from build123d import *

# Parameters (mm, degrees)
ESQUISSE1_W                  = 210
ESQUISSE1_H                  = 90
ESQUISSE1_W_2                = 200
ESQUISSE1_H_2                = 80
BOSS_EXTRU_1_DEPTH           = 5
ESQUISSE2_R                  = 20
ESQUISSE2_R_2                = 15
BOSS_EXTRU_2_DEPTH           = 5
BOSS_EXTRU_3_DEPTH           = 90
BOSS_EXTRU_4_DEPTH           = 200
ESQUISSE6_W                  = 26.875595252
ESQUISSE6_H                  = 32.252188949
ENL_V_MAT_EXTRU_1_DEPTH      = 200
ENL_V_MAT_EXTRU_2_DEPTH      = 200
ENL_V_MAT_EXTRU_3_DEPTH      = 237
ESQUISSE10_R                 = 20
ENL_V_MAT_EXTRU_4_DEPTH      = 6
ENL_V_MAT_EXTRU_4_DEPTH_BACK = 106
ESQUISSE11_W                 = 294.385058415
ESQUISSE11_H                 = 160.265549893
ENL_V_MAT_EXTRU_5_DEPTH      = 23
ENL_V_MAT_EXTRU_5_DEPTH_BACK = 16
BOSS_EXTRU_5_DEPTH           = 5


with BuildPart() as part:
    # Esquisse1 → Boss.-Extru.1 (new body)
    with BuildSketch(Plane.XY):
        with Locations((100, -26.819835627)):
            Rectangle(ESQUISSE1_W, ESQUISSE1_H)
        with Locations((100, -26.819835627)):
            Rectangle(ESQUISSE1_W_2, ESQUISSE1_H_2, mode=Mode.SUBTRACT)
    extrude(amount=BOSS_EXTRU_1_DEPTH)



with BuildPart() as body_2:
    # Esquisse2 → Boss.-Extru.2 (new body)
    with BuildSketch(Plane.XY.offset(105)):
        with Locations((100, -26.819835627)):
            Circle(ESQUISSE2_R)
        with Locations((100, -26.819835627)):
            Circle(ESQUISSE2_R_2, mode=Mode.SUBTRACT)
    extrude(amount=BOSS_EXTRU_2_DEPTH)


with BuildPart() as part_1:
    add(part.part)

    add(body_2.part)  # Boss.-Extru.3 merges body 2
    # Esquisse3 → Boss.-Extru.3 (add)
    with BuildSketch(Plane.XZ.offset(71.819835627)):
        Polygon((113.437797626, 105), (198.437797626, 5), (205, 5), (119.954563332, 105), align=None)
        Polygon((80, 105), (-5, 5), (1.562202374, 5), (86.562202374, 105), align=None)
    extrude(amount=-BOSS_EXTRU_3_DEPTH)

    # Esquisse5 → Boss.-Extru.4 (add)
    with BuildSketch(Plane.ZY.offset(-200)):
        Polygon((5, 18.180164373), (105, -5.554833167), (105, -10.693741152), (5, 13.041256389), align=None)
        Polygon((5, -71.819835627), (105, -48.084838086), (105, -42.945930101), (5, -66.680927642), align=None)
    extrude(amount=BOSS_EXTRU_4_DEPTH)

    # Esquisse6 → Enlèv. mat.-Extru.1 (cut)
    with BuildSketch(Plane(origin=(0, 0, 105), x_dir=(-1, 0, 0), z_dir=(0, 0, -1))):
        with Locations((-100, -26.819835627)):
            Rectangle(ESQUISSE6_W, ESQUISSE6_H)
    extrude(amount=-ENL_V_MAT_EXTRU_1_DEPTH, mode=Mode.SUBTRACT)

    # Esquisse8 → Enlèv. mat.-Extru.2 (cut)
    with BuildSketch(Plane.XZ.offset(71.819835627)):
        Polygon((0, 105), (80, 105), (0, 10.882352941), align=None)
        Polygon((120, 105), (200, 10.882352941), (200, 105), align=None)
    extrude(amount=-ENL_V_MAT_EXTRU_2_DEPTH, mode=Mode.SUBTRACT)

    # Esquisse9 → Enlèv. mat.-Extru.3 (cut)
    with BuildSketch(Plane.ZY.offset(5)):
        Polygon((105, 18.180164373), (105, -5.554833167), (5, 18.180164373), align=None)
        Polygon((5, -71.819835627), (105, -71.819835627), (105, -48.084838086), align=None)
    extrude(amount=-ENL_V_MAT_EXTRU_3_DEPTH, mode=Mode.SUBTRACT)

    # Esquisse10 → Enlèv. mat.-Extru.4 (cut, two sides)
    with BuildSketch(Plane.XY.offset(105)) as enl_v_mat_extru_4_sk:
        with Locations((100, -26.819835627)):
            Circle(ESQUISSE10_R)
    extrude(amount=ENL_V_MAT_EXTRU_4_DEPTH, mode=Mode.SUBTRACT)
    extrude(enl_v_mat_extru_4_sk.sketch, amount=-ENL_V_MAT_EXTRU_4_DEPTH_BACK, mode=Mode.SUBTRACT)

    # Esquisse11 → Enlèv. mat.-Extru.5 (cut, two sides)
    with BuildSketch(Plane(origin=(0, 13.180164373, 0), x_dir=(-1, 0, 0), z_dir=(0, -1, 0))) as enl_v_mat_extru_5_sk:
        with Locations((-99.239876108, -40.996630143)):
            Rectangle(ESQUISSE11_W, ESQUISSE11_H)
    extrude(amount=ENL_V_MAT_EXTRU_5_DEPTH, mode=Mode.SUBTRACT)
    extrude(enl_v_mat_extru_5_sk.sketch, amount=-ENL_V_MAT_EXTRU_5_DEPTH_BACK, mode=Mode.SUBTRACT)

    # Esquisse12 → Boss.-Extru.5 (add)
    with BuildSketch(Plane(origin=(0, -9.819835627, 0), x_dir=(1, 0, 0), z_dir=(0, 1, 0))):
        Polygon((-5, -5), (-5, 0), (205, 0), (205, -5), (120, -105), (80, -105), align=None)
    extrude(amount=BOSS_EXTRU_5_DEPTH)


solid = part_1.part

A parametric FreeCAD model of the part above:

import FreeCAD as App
import Part
import Sketcher
Q = App.Units.Quantity

doc = App.newDocument("Part")
body = doc.addObject("PartDesign::Body", "Body")

# Sketch on XY plane
sketch1 = doc.addObject("Sketcher::SketchObject", "Sketch")
body.addObject(sketch1)
sketch1.AttachmentSupport = (doc.XY_Plane, [""])
sketch1.MapMode = "FlatFace"
sketch1.addGeometry(Part.LineSegment(App.Vector(-5, 18, 0), App.Vector(-5, -72, 0)), False)
sketch1.addGeometry(Part.LineSegment(App.Vector(-5, -72, 0), App.Vector(205, -72, 0)), False)
sketch1.addGeometry(Part.LineSegment(App.Vector(205, -72, 0), App.Vector(205, 18, 0)), False)
sketch1.addGeometry(Part.LineSegment(App.Vector(205, 18, 0), App.Vector(-5, 18, 0)), False)
sketch1.addGeometry(Part.LineSegment(App.Vector(200, -67, 0), App.Vector(0, -67, 0)), False)
sketch1.addGeometry(Part.LineSegment(App.Vector(0, -67, 0), App.Vector(0, 13, 0)), False)
sketch1.addGeometry(Part.LineSegment(App.Vector(0, 13, 0), App.Vector(200, 13, 0)), False)
sketch1.addGeometry(Part.LineSegment(App.Vector(200, 13, 0), App.Vector(200, -67, 0)), False)
sketch1.addConstraint(Sketcher.Constraint("Coincident", 0, 2, 1, 1))
sketch1.addConstraint(Sketcher.Constraint("Coincident", 1, 2, 2, 1))
sketch1.addConstraint(Sketcher.Constraint("Coincident", 2, 2, 3, 1))
sketch1.addConstraint(Sketcher.Constraint("Coincident", 3, 2, 0, 1))
sketch1.addConstraint(Sketcher.Constraint("Coincident", 4, 2, 5, 1))
sketch1.addConstraint(Sketcher.Constraint("Coincident", 5, 2, 6, 1))
sketch1.addConstraint(Sketcher.Constraint("Coincident", 6, 2, 7, 1))
sketch1.addConstraint(Sketcher.Constraint("Coincident", 7, 2, 4, 1))
sketch1.addConstraint(Sketcher.Constraint("Vertical", 0))
sketch1.addConstraint(Sketcher.Constraint("Horizontal", 1))
sketch1.addConstraint(Sketcher.Constraint("Vertical", 2))
sketch1.addConstraint(Sketcher.Constraint("Horizontal", 3))
sketch1.addConstraint(Sketcher.Constraint("Horizontal", 4))
sketch1.addConstraint(Sketcher.Constraint("Vertical", 5))
sketch1.addConstraint(Sketcher.Constraint("Horizontal", 6))
sketch1.addConstraint(Sketcher.Constraint("Vertical", 7))
sketch1.addConstraint(Sketcher.Constraint("PointOnObject", 4, 2, -2))
sketch1.addConstraint(Sketcher.Constraint("DistanceX", 1, 1, 1, 2, Q("210 mm")))
sketch1.addConstraint(Sketcher.Constraint("DistanceX", 4, 2, 4, 1, Q("200 mm")))
sketch1.addConstraint(Sketcher.Constraint("DistanceY", 0, 2, 0, 1, Q("90 mm")))
sketch1.addConstraint(Sketcher.Constraint("DistanceY", 5, 1, 5, 2, Q("80 mm")))
sketch1.addConstraint(Sketcher.Constraint("DistanceX", 0, 2, -1, 1, Q("5 mm")))
sketch1.addConstraint(Sketcher.Constraint("DistanceY", 0, 2, 4, 2, Q("5 mm")))
sketch1.addConstraint(Sketcher.Constraint("DistanceY", 0, 2, -1, 1, Q("71.819836 mm")))
pad1 = doc.addObject("PartDesign::Pad", "Pad")
body.addObject(pad1)
pad1.Profile = sketch1
pad1.Length = 5
body2 = doc.addObject("PartDesign::Body", "Body001")

# Sketch on XY plane
sketch2 = doc.addObject("Sketcher::SketchObject", "Sketch001")
body2.addObject(sketch2)
sketch2.AttachmentSupport = (doc.getObject("XY_Plane001"), [""])
sketch2.MapMode = "FlatFace"
sketch2.AttachmentOffset = App.Placement(App.Vector(0, 0, 105), App.Rotation())
sketch2.addGeometry(Part.Circle(App.Vector(100, -27, 0), App.Vector(0, 0, 1), 20), False)
sketch2.addGeometry(Part.Circle(App.Vector(100, -27, 0), App.Vector(0, 0, 1), 15), False)
sketch2.addConstraint(Sketcher.Constraint("Coincident", 1, 3, 0, 3))
sketch2.addConstraint(Sketcher.Constraint("Diameter", 0, Q("40 mm")))
sketch2.addConstraint(Sketcher.Constraint("Diameter", 1, Q("30 mm")))
sketch2.addConstraint(Sketcher.Constraint("DistanceX", -1, 1, 0, 3, Q("100 mm")))
sketch2.addConstraint(Sketcher.Constraint("DistanceY", 0, 3, -1, 1, Q("26.819836 mm")))
pad2 = doc.addObject("PartDesign::Pad", "Pad001")
body2.addObject(pad2)
pad2.Profile = sketch2
pad2.Length = 5
body.AllowCompound = True
doc.recompute()

boolean = doc.addObject("PartDesign::Boolean", "Boolean")
body.addObject(boolean)
boolean.Type = "Fuse"
boolean.addObjects([body2])

# Sketch on XZ plane
sketch3 = doc.addObject("Sketcher::SketchObject", "Sketch002")
body.addObject(sketch3)
sketch3.AttachmentSupport = (doc.XZ_Plane, [""])
sketch3.MapMode = "FlatFace"
sketch3.AttachmentOffset = App.Placement(App.Vector(0, 0, 71.819836), App.Rotation())
sketch3.addGeometry(Part.LineSegment(App.Vector(113, 105, 0), App.Vector(198, 5, 0)), False)
sketch3.addGeometry(Part.LineSegment(App.Vector(198, 5, 0), App.Vector(205, 5, 0)), False)
sketch3.addGeometry(Part.LineSegment(App.Vector(205, 5, 0), App.Vector(120, 105, 0)), False)
sketch3.addGeometry(Part.LineSegment(App.Vector(120, 105, 0), App.Vector(113, 105, 0)), False)
sketch3.addGeometry(Part.LineSegment(App.Vector(80, 105, 0), App.Vector(-5, 5, 0)), False)
sketch3.addGeometry(Part.LineSegment(App.Vector(-5, 5, 0), App.Vector(2, 5, 0)), False)
sketch3.addGeometry(Part.LineSegment(App.Vector(2, 5, 0), App.Vector(87, 105, 0)), False)
sketch3.addGeometry(Part.LineSegment(App.Vector(87, 105, 0), App.Vector(80, 105, 0)), False)
sketch3.addConstraint(Sketcher.Constraint("Coincident", 0, 2, 1, 1))
sketch3.addConstraint(Sketcher.Constraint("Coincident", 1, 2, 2, 1))
sketch3.addConstraint(Sketcher.Constraint("Coincident", 2, 2, 3, 1))
sketch3.addConstraint(Sketcher.Constraint("Coincident", 3, 2, 0, 1))
sketch3.addConstraint(Sketcher.Constraint("Coincident", 4, 2, 5, 1))
sketch3.addConstraint(Sketcher.Constraint("Coincident", 5, 2, 6, 1))
sketch3.addConstraint(Sketcher.Constraint("Coincident", 6, 2, 7, 1))
sketch3.addConstraint(Sketcher.Constraint("Coincident", 7, 2, 4, 1))
sketch3.addConstraint(Sketcher.Constraint("Horizontal", 1))
sketch3.addConstraint(Sketcher.Constraint("Horizontal", 3))
sketch3.addConstraint(Sketcher.Constraint("Horizontal", 5))
sketch3.addConstraint(Sketcher.Constraint("Horizontal", 7))
sketch3.addConstraint(Sketcher.Constraint("Parallel", 4, 6))
sketch3.addConstraint(Sketcher.Constraint("Horizontal", 1, 2, 4, 2))
sketch3.addConstraint(Sketcher.Constraint("Horizontal", 3, 2, 6, 2))
sketch3.addConstraint(Sketcher.Constraint("Equal", 1, 5))
sketch3.addConstraint(Sketcher.Constraint("Equal", 0, 4))
sketch3.addConstraint(Sketcher.Constraint("DistanceY", -1, 1, 0, 2, Q("5 mm")))
sketch3.addConstraint(Sketcher.Constraint("DistanceX", -1, 1, 1, 2, Q("205 mm")))
sketch3.addConstraint(Sketcher.Constraint("DistanceY", -1, 1, 2, 2, Q("105 mm")))
sketch3.addConstraint(Sketcher.Constraint("DistanceX", 4, 2, -1, 1, Q("5 mm")))
sketch3.addConstraint(Sketcher.Constraint("DistanceX", -1, 1, 7, 2, Q("80 mm")))
sketch3.addConstraint(Sketcher.Constraint("Distance", 2, Q("131.273479 mm")))
sketch3.addConstraint(Sketcher.Constraint("DistanceX", 1, 1, 1, 2, Q("6.562202 mm")))
pad3 = doc.addObject("PartDesign::Pad", "Pad002")
body.addObject(pad3)
pad3.Profile = sketch3
pad3.Length = 90
pad3.Reversed = True

# Sketch on YZ plane
sketch4 = doc.addObject("Sketcher::SketchObject", "Sketch003")
body.addObject(sketch4)
sketch4.AttachmentSupport = (doc.YZ_Plane, [""])
sketch4.MapMode = "FlatFace"
sketch4.AttachmentOffset = App.Placement(App.Vector(0, 0, 200), App.Rotation())
sketch4.addGeometry(Part.LineSegment(App.Vector(-6, 105, 0), App.Vector(18, 5, 0)), False)
sketch4.addGeometry(Part.LineSegment(App.Vector(18, 5, 0), App.Vector(13, 5, 0)), False)
sketch4.addGeometry(Part.LineSegment(App.Vector(13, 5, 0), App.Vector(-11, 105, 0)), False)
sketch4.addGeometry(Part.LineSegment(App.Vector(-11, 105, 0), App.Vector(-6, 105, 0)), False)
sketch4.addGeometry(Part.LineSegment(App.Vector(-72, 5, 0), App.Vector(-48, 105, 0)), False)
sketch4.addGeometry(Part.LineSegment(App.Vector(-48, 105, 0), App.Vector(-43, 105, 0)), False)
sketch4.addGeometry(Part.LineSegment(App.Vector(-43, 105, 0), App.Vector(-67, 5, 0)), False)
sketch4.addGeometry(Part.LineSegment(App.Vector(-67, 5, 0), App.Vector(-72, 5, 0)), False)
sketch4.addConstraint(Sketcher.Constraint("Coincident", 0, 2, 1, 1))
sketch4.addConstraint(Sketcher.Constraint("Coincident", 1, 2, 2, 1))
sketch4.addConstraint(Sketcher.Constraint("Coincident", 2, 2, 3, 1))
sketch4.addConstraint(Sketcher.Constraint("Coincident", 3, 2, 0, 1))
sketch4.addConstraint(Sketcher.Constraint("Coincident", 4, 2, 5, 1))
sketch4.addConstraint(Sketcher.Constraint("Coincident", 5, 2, 6, 1))
sketch4.addConstraint(Sketcher.Constraint("Coincident", 6, 2, 7, 1))
sketch4.addConstraint(Sketcher.Constraint("Coincident", 7, 2, 4, 1))
sketch4.addConstraint(Sketcher.Constraint("Horizontal", 1))
sketch4.addConstraint(Sketcher.Constraint("Horizontal", 3))
sketch4.addConstraint(Sketcher.Constraint("Horizontal", 5))
sketch4.addConstraint(Sketcher.Constraint("Horizontal", 7))
sketch4.addConstraint(Sketcher.Constraint("Parallel", 0, 2))
sketch4.addConstraint(Sketcher.Constraint("Parallel", 4, 6))
sketch4.addConstraint(Sketcher.Constraint("Horizontal", 3, 2, 4, 2))
sketch4.addConstraint(Sketcher.Constraint("Horizontal", 1, 2, 6, 2))
sketch4.addConstraint(Sketcher.Constraint("Equal", 3, 5))
sketch4.addConstraint(Sketcher.Constraint("Equal", 2, 4))
sketch4.addConstraint(Sketcher.Constraint("DistanceY", -1, 1, 0, 2, Q("5 mm")))
sketch4.addConstraint(Sketcher.Constraint("DistanceY", -1, 1, 2, 2, Q("105 mm")))
sketch4.addConstraint(Sketcher.Constraint("DistanceX", 7, 2, 0, 2, Q("90 mm")))
sketch4.addConstraint(Sketcher.Constraint("Distance", 0, Q("102.77816 mm")))
sketch4.addConstraint(Sketcher.Constraint("DistanceX", 1, 2, 1, 1, Q("5.138908 mm")))
sketch4.addConstraint(Sketcher.Constraint("DistanceX", 2, 2, -1, 1, Q("10.693741 mm")))
pad4 = doc.addObject("PartDesign::Pad", "Pad003")
body.addObject(pad4)
pad4.Profile = sketch4
pad4.Length = 200
pad4.Reversed = True

# Sketch on XY plane
sketch5 = doc.addObject("Sketcher::SketchObject", "Sketch004")
body.addObject(sketch5)
sketch5.AttachmentSupport = (doc.XY_Plane, [""])
sketch5.MapMode = "FlatFace"
sketch5.AttachmentOffset = App.Placement(App.Vector(0, 0, 105), App.Rotation())
sketch5.addGeometry(Part.LineSegment(App.Vector(113, -11, 0), App.Vector(113, -43, 0)), False)
sketch5.addGeometry(Part.LineSegment(App.Vector(113, -43, 0), App.Vector(87, -43, 0)), False)
sketch5.addGeometry(Part.LineSegment(App.Vector(87, -43, 0), App.Vector(87, -11, 0)), False)
sketch5.addGeometry(Part.LineSegment(App.Vector(87, -11, 0), App.Vector(113, -11, 0)), False)
sketch5.addConstraint(Sketcher.Constraint("Coincident", 0, 2, 1, 1))
sketch5.addConstraint(Sketcher.Constraint("Coincident", 1, 2, 2, 1))
sketch5.addConstraint(Sketcher.Constraint("Coincident", 2, 2, 3, 1))
sketch5.addConstraint(Sketcher.Constraint("Coincident", 3, 2, 0, 1))
sketch5.addConstraint(Sketcher.Constraint("Vertical", 0))
sketch5.addConstraint(Sketcher.Constraint("Horizontal", 1))
sketch5.addConstraint(Sketcher.Constraint("Vertical", 2))
sketch5.addConstraint(Sketcher.Constraint("Horizontal", 3))
sketch5.addConstraint(Sketcher.Constraint("DistanceY", 0, 2, 0, 1, Q("32.252189 mm")))
sketch5.addConstraint(Sketcher.Constraint("DistanceX", 1, 2, 1, 1, Q("26.875595 mm")))
sketch5.addConstraint(Sketcher.Constraint("DistanceY", 0, 2, -1, 1, Q("42.94593 mm")))
sketch5.addConstraint(Sketcher.Constraint("DistanceX", -1, 1, 0, 2, Q("113.437798 mm")))
pocket1 = doc.addObject("PartDesign::Pocket", "Pocket")
body.addObject(pocket1)
pocket1.Profile = sketch5
pocket1.Length = 200
pocket1.Reversed = True

# Sketch on XZ plane
sketch6 = doc.addObject("Sketcher::SketchObject", "Sketch005")
body.addObject(sketch6)
sketch6.AttachmentSupport = (doc.XZ_Plane, [""])
sketch6.MapMode = "FlatFace"
sketch6.AttachmentOffset = App.Placement(App.Vector(0, 0, 71.819836), App.Rotation())
sketch6.addGeometry(Part.LineSegment(App.Vector(80, 105, 0), App.Vector(0, 105, 0)), False)
sketch6.addGeometry(Part.LineSegment(App.Vector(0, 105, 0), App.Vector(0, 11, 0)), False)
sketch6.addGeometry(Part.LineSegment(App.Vector(0, 11, 0), App.Vector(80, 105, 0)), False)
sketch6.addGeometry(Part.LineSegment(App.Vector(120, 105, 0), App.Vector(200, 11, 0)), False)
sketch6.addGeometry(Part.LineSegment(App.Vector(200, 11, 0), App.Vector(200, 105, 0)), False)
sketch6.addGeometry(Part.LineSegment(App.Vector(200, 105, 0), App.Vector(120, 105, 0)), False)
sketch6.addConstraint(Sketcher.Constraint("Coincident", 0, 2, 1, 1))
sketch6.addConstraint(Sketcher.Constraint("Coincident", 1, 2, 2, 1))
sketch6.addConstraint(Sketcher.Constraint("Coincident", 2, 2, 0, 1))
sketch6.addConstraint(Sketcher.Constraint("Coincident", 3, 2, 4, 1))
sketch6.addConstraint(Sketcher.Constraint("Coincident", 4, 2, 5, 1))
sketch6.addConstraint(Sketcher.Constraint("Coincident", 5, 2, 3, 1))
sketch6.addConstraint(Sketcher.Constraint("Horizontal", 0))
sketch6.addConstraint(Sketcher.Constraint("Vertical", 1))
sketch6.addConstraint(Sketcher.Constraint("Vertical", 4))
sketch6.addConstraint(Sketcher.Constraint("Horizontal", 5))
sketch6.addConstraint(Sketcher.Constraint("PointOnObject", 0, 2, -2))
sketch6.addConstraint(Sketcher.Constraint("Horizontal", 1, 2, 3, 2))
sketch6.addConstraint(Sketcher.Constraint("Horizontal", 2, 2, 4, 2))
sketch6.addConstraint(Sketcher.Constraint("Equal", 0, 5))
sketch6.addConstraint(Sketcher.Constraint("DistanceX", 0, 2, 0, 1, Q("80 mm")))
sketch6.addConstraint(Sketcher.Constraint("DistanceY", -1, 1, 0, 2, Q("105 mm")))
sketch6.addConstraint(Sketcher.Constraint("DistanceX", -1, 1, 3, 2, Q("200 mm")))
sketch6.addConstraint(Sketcher.Constraint("Distance", 2, Q("123.523809 mm")))
pocket2 = doc.addObject("PartDesign::Pocket", "Pocket001")
body.addObject(pocket2)
pocket2.Profile = sketch6
pocket2.Length = 200

# Sketch on YZ plane
sketch7 = doc.addObject("Sketcher::SketchObject", "Sketch006")
body.addObject(sketch7)
sketch7.AttachmentSupport = (doc.YZ_Plane, [""])
sketch7.MapMode = "FlatFace"
sketch7.AttachmentOffset = App.Placement(App.Vector(0, 0, -5), App.Rotation())
sketch7.addGeometry(Part.LineSegment(App.Vector(-6, 105, 0), App.Vector(18, 105, 0)), False)
sketch7.addGeometry(Part.LineSegment(App.Vector(18, 105, 0), App.Vector(18, 5, 0)), False)
sketch7.addGeometry(Part.LineSegment(App.Vector(18, 5, 0), App.Vector(-6, 105, 0)), False)
sketch7.addGeometry(Part.LineSegment(App.Vector(-72, 5, 0), App.Vector(-72, 105, 0)), False)
sketch7.addGeometry(Part.LineSegment(App.Vector(-72, 105, 0), App.Vector(-48, 105, 0)), False)
sketch7.addGeometry(Part.LineSegment(App.Vector(-48, 105, 0), App.Vector(-72, 5, 0)), False)
sketch7.addConstraint(Sketcher.Constraint("Coincident", 0, 2, 1, 1))
sketch7.addConstraint(Sketcher.Constraint("Coincident", 1, 2, 2, 1))
sketch7.addConstraint(Sketcher.Constraint("Coincident", 2, 2, 0, 1))
sketch7.addConstraint(Sketcher.Constraint("Coincident", 3, 2, 4, 1))
sketch7.addConstraint(Sketcher.Constraint("Coincident", 4, 2, 5, 1))
sketch7.addConstraint(Sketcher.Constraint("Coincident", 5, 2, 3, 1))
sketch7.addConstraint(Sketcher.Constraint("Horizontal", 0))
sketch7.addConstraint(Sketcher.Constraint("Vertical", 1))
sketch7.addConstraint(Sketcher.Constraint("Vertical", 3))
sketch7.addConstraint(Sketcher.Constraint("Horizontal", 4))
sketch7.addConstraint(Sketcher.Constraint("Horizontal", 2, 2, 3, 2))
sketch7.addConstraint(Sketcher.Constraint("Horizontal", 1, 2, 5, 2))
sketch7.addConstraint(Sketcher.Constraint("Equal", 0, 4))
sketch7.addConstraint(Sketcher.Constraint("DistanceY", 1, 2, 1, 1, Q("100 mm")))
sketch7.addConstraint(Sketcher.Constraint("DistanceY", -1, 1, 0, 2, Q("105 mm")))
sketch7.addConstraint(Sketcher.Constraint("DistanceX", 3, 2, 0, 2, Q("90 mm")))
sketch7.addConstraint(Sketcher.Constraint("Distance", 2, Q("102.77816 mm")))
sketch7.addConstraint(Sketcher.Constraint("DistanceX", 4, 2, -1, 1, Q("48.084838 mm")))
pocket3 = doc.addObject("PartDesign::Pocket", "Pocket002")
body.addObject(pocket3)
pocket3.Profile = sketch7
pocket3.Length = 237
pocket3.Reversed = True

# Sketch on XY plane
sketch8 = doc.addObject("Sketcher::SketchObject", "Sketch007")
body.addObject(sketch8)
sketch8.AttachmentSupport = (doc.XY_Plane, [""])
sketch8.MapMode = "FlatFace"
sketch8.AttachmentOffset = App.Placement(App.Vector(0, 0, 105), App.Rotation())
sketch8.addGeometry(Part.Circle(App.Vector(100, -27, 0), App.Vector(0, 0, 1), 20), False)
sketch8.addConstraint(Sketcher.Constraint("Diameter", 0, Q("40 mm")))
sketch8.addConstraint(Sketcher.Constraint("DistanceX", -1, 1, 0, 3, Q("100 mm")))
sketch8.addConstraint(Sketcher.Constraint("DistanceY", 0, 3, -1, 1, Q("26.819836 mm")))
pocket4 = doc.addObject("PartDesign::Pocket", "Pocket003")
body.addObject(pocket4)
pocket4.Profile = sketch8
pocket4.Type = "ThroughAll"
pocket4.Midplane = True

# Sketch on XZ plane
sketch9 = doc.addObject("Sketcher::SketchObject", "Sketch008")
body.addObject(sketch9)
sketch9.AttachmentSupport = (doc.XZ_Plane, [""])
sketch9.MapMode = "FlatFace"
sketch9.AttachmentOffset = App.Placement(App.Vector(0, 0, -13.180164), App.Rotation())
sketch9.addGeometry(Part.LineSegment(App.Vector(246, -39, 0), App.Vector(246, 121, 0)), False)
sketch9.addGeometry(Part.LineSegment(App.Vector(246, 121, 0), App.Vector(-48, 121, 0)), False)
sketch9.addGeometry(Part.LineSegment(App.Vector(-48, 121, 0), App.Vector(-48, -39, 0)), False)
sketch9.addGeometry(Part.LineSegment(App.Vector(-48, -39, 0), App.Vector(246, -39, 0)), False)
sketch9.addConstraint(Sketcher.Constraint("Coincident", 0, 2, 1, 1))
sketch9.addConstraint(Sketcher.Constraint("Coincident", 1, 2, 2, 1))
sketch9.addConstraint(Sketcher.Constraint("Coincident", 2, 2, 3, 1))
sketch9.addConstraint(Sketcher.Constraint("Coincident", 3, 2, 0, 1))
sketch9.addConstraint(Sketcher.Constraint("Vertical", 0))
sketch9.addConstraint(Sketcher.Constraint("Horizontal", 1))
sketch9.addConstraint(Sketcher.Constraint("Vertical", 2))
sketch9.addConstraint(Sketcher.Constraint("Horizontal", 3))
sketch9.addConstraint(Sketcher.Constraint("DistanceX", 1, 2, 1, 1, Q("294.385058 mm")))
sketch9.addConstraint(Sketcher.Constraint("DistanceY", 0, 1, 0, 2, Q("160.26555 mm")))
sketch9.addConstraint(Sketcher.Constraint("DistanceX", -1, 1, 0, 2, Q("246.432405 mm")))
sketch9.addConstraint(Sketcher.Constraint("DistanceY", -1, 1, 0, 2, Q("121.129405 mm")))
pocket5 = doc.addObject("PartDesign::Pocket", "Pocket004")
body.addObject(pocket5)
pocket5.Profile = sketch9
pocket5.Type = "TwoLengths"
pocket5.Length = 23
pocket5.Length2 = 16
pocket5.Reversed = True

# Sketch on XZ plane
sketch10 = doc.addObject("Sketcher::SketchObject", "Sketch009")
body.addObject(sketch10)
sketch10.AttachmentSupport = (doc.XZ_Plane, [""])
sketch10.MapMode = "FlatFace"
sketch10.AttachmentOffset = App.Placement(App.Vector(0, 0, 9.819836), App.Rotation())
sketch10.addGeometry(Part.LineSegment(App.Vector(-5, 0, 0), App.Vector(-5, 5, 0)), False)
sketch10.addGeometry(Part.LineSegment(App.Vector(-5, 5, 0), App.Vector(80, 105, 0)), False)
sketch10.addGeometry(Part.LineSegment(App.Vector(80, 105, 0), App.Vector(120, 105, 0)), False)
sketch10.addGeometry(Part.LineSegment(App.Vector(120, 105, 0), App.Vector(205, 5, 0)), False)
sketch10.addGeometry(Part.LineSegment(App.Vector(205, 5, 0), App.Vector(205, 0, 0)), False)
sketch10.addGeometry(Part.LineSegment(App.Vector(205, 0, 0), App.Vector(-5, 0, 0)), False)
sketch10.addConstraint(Sketcher.Constraint("Coincident", 0, 2, 1, 1))
sketch10.addConstraint(Sketcher.Constraint("Coincident", 1, 2, 2, 1))
sketch10.addConstraint(Sketcher.Constraint("Coincident", 2, 2, 3, 1))
sketch10.addConstraint(Sketcher.Constraint("Coincident", 3, 2, 4, 1))
sketch10.addConstraint(Sketcher.Constraint("Coincident", 4, 2, 5, 1))
sketch10.addConstraint(Sketcher.Constraint("Coincident", 5, 2, 0, 1))
sketch10.addConstraint(Sketcher.Constraint("Vertical", 0))
sketch10.addConstraint(Sketcher.Constraint("Horizontal", 2))
sketch10.addConstraint(Sketcher.Constraint("Vertical", 4))
sketch10.addConstraint(Sketcher.Constraint("Horizontal", 5))
sketch10.addConstraint(Sketcher.Constraint("PointOnObject", 4, 2, -1))
sketch10.addConstraint(Sketcher.Constraint("Horizontal", 0, 2, 3, 2))
sketch10.addConstraint(Sketcher.Constraint("Equal", 1, 3))
sketch10.addConstraint(Sketcher.Constraint("DistanceX", 2, 1, 2, 2, Q("40 mm")))
sketch10.addConstraint(Sketcher.Constraint("DistanceX", 5, 2, 5, 1, Q("210 mm")))
sketch10.addConstraint(Sketcher.Constraint("DistanceY", 0, 1, 0, 2, Q("5 mm")))
sketch10.addConstraint(Sketcher.Constraint("DistanceX", 0, 2, -1, 1, Q("5 mm")))
sketch10.addConstraint(Sketcher.Constraint("DistanceY", -1, 1, 1, 2, Q("105 mm")))
pad5 = doc.addObject("PartDesign::Pad", "Pad004")
body.addObject(pad5)
pad5.Profile = sketch10
pad5.Length = 5
pad5.Reversed = True

doc.recompute()
